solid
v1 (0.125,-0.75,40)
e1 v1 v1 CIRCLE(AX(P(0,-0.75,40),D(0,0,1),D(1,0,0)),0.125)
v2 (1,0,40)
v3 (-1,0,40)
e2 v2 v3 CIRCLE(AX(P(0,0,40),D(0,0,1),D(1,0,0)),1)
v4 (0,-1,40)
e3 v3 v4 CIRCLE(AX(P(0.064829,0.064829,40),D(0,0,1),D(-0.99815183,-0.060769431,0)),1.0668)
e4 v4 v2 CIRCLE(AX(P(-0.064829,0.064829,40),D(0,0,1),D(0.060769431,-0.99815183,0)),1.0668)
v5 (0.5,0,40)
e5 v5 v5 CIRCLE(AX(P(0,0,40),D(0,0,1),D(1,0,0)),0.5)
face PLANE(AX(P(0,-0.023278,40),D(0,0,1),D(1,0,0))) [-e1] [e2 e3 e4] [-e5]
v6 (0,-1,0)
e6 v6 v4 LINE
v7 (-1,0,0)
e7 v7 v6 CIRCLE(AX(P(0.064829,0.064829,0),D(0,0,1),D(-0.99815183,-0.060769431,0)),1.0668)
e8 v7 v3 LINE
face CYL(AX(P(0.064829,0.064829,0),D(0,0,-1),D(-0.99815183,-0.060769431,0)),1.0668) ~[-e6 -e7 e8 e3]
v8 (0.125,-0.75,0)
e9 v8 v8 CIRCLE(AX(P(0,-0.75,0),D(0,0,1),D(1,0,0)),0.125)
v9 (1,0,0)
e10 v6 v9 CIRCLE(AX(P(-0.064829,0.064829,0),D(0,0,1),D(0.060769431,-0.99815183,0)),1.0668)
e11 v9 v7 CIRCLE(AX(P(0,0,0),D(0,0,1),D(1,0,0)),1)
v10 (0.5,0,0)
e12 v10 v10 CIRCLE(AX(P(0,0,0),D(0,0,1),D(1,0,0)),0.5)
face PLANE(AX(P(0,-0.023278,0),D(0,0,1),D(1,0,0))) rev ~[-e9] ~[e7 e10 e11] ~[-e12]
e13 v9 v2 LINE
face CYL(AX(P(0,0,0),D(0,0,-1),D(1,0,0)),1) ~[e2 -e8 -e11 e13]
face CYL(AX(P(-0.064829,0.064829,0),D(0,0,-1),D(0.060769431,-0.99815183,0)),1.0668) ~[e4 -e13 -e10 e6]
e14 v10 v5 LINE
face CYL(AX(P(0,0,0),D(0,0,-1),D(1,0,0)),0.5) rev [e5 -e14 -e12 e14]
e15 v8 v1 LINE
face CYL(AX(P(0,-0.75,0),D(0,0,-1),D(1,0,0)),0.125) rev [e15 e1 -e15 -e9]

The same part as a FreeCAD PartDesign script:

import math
import FreeCAD as App
import Part
import Sketcher

V = App.Vector
Q = App.Units.Quantity

doc = App.newDocument("Part")
body = doc.addObject("PartDesign::Body", "Body")

# Sketch on XY plane
sketch1 = body.newObject("Sketcher::SketchObject", "Sketch")
sketch1.AttachmentSupport = (doc.getObject("XY_Plane"), [""])
sketch1.MapMode = "FlatFace"
sketch1.addGeometry(Part.ArcOfCircle(Part.Circle(V(-0.06, 0.06, 0), V(0, 0, 1), 1.07), math.radians(-87), math.radians(-3)), False)
sketch1.addGeometry(Part.ArcOfCircle(Part.Circle(V(0, 0, 0), V(0, 0, 1), 1), math.radians(0), math.radians(180)), False)
sketch1.addGeometry(Part.ArcOfCircle(Part.Circle(V(0.06, 0.06, 0), V(0, 0, 1), 1.07), math.radians(-177), math.radians(-93)), False)
sketch1.addGeometry(Part.Circle(V(0, -0.75, 0), V(0, 0, 1), 0.12), False)
sketch1.addGeometry(Part.Circle(V(0, 0, 0), V(0, 0, 1), 0.5), False)
sketch1.addConstraint(Sketcher.Constraint("Coincident", 0, 2, 1, 1))
sketch1.addConstraint(Sketcher.Constraint("Coincident", 1, 2, 2, 1))
sketch1.addConstraint(Sketcher.Constraint("Coincident", 2, 2, 0, 1))
sketch1.addConstraint(Sketcher.Constraint("Coincident", 1, 3, -1, 1))
sketch1.addConstraint(Sketcher.Constraint("Coincident", 4, 3, -1, 1))
sketch1.addConstraint(Sketcher.Constraint("Equal", 0, 2))
sketch1.addConstraint(Sketcher.Constraint("Symmetric", 0, 3, 2, 3, -2))
sketch1.addConstraint(Sketcher.Constraint("PointOnObject", 3, 3, -2))
sketch1.addConstraint(Sketcher.Constraint("PointOnObject", 0, 2, -1))
sketch1.addConstraint(Sketcher.Constraint("Diameter", 4, Q("1 mm")))
sketch1.addConstraint(Sketcher.Constraint("Radius", 1, Q("1 mm")))
sketch1.addConstraint(Sketcher.Constraint("Diameter", 3, Q("0.25 mm")))
sketch1.addConstraint(Sketcher.Constraint("DistanceY", 2, 2, -1, 1, Q("1 mm")))
sketch1.addConstraint(Sketcher.Constraint("Radius", 0, Q("1.0668 mm")))
sketch1.addConstraint(Sketcher.Constraint("DistanceY", 3, 3, -1, 1, Q("0.75 mm")))
pad1 = body.newObject("PartDesign::Pad", "Pad")
pad1.Profile = sketch1
pad1.Length = 40

doc.recompute()
